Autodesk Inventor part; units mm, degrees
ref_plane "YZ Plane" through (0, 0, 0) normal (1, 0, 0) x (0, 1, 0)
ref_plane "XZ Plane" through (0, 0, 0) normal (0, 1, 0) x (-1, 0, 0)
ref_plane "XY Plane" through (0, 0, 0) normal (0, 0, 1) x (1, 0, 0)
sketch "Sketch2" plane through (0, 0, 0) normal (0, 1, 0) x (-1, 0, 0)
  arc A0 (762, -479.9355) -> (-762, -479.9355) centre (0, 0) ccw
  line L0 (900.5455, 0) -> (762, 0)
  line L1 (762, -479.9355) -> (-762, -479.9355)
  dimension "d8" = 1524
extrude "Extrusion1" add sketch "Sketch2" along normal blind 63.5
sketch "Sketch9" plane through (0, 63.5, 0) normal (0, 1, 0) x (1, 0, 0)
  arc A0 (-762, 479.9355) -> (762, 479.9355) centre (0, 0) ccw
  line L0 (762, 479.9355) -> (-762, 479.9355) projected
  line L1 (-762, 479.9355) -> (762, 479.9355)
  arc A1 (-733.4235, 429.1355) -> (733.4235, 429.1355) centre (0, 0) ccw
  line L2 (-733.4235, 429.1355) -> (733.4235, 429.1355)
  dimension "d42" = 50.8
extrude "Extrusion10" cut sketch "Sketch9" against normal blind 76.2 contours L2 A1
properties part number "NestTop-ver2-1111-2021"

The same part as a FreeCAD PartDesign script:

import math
import FreeCAD as App
import Part
import Sketcher
Q = App.Units.Quantity

doc = App.newDocument("Part")
params = doc.addObject("Spreadsheet::Sheet", "Params")
for row, (alias, value) in enumerate([
    ("sketch1_width", "60 in"),
    ("pad1_length", "2.5 in"),
    ("pocket1_length", "3 in"),
], start=1):
    params.set(f"A{row}", alias)
    params.set(f"B{row}", "=" + value)
    params.setAlias(f"B{row}", alias)

body = doc.addObject("PartDesign::Body", "Body")

# Sketch on XZ plane
sketch1 = doc.addObject("Sketcher::SketchObject", "Sketch")
body.addObject(sketch1)
sketch1.AttachmentSupport = (doc.XZ_Plane, [""])
sketch1.MapMode = "FlatFace"
sketch1.addGeometry([
    Part.LineSegment(App.Vector(762, -479.9355, 0), App.Vector(-762, -479.9355, 0)),
    Part.ArcOfCircle(Part.Circle(App.Vector(0, 0, 0), App.Vector(0, 0, 1), 900.545437), math.radians(-32.204226), math.radians(212.204226)),
], False)
sketch1.addConstraint([
    Sketcher.Constraint("Coincident", 0, 1, 1, 1),
    Sketcher.Constraint("Coincident", 1, 2, 0, 2),
    Sketcher.Constraint("Horizontal", 0),
    Sketcher.Constraint("Coincident", 1, 3, -1, 1),
    Sketcher.Constraint("DistanceX", 0, 2, 0, 1, Q("60 in")),
    Sketcher.Constraint("Radius", 1, Q("900.5454 mm")),
])
sketch1.setExpression("Constraints[4]", "Params.sketch1_width")
pad1 = doc.addObject("PartDesign::Pad", "Pad")
body.addObject(pad1)
pad1.Profile = sketch1
pad1.setExpression("Length", "Params.pad1_length")
pad1.Reversed = True

# Sketch on XZ plane
sketch2 = doc.addObject("Sketcher::SketchObject", "Sketch001")
body.addObject(sketch2)
sketch2.AttachmentSupport = (doc.XZ_Plane, [""])
sketch2.MapMode = "FlatFace"
sketch2.AttachmentOffset = App.Placement(App.Vector(0, 0, -2.5 * 25.4), App.Rotation())
sketch2.addGeometry([
    Part.LineSegment(App.Vector(733.4235, -429.1355, 0), App.Vector(-733.4235, -429.1355, 0)),
    Part.ArcOfCircle(Part.Circle(App.Vector(0, 0, 0), App.Vector(0, 0, 1), 849.745437), math.radians(-30.33245), math.radians(210.33245)),
], False)
sketch2.addConstraint([
    Sketcher.Constraint("Coincident", 0, 1, 1, 1),
    Sketcher.Constraint("Coincident", 1, 2, 0, 2),
    Sketcher.Constraint("Horizontal", 0),
    Sketcher.Constraint("Coincident", 1, 3, -1, 1),
    Sketcher.Constraint("Radius", 1, Q("849.7454 mm")),
    Sketcher.Constraint("DistanceX", 0, 2, 0, 1, Q("1466.847 mm")),
])
pocket1 = doc.addObject("PartDesign::Pocket", "Pocket")
body.addObject(pocket1)
pocket1.Profile = sketch2
pocket1.setExpression("Length", "Params.pocket1_length")
pocket1.Reversed = True

doc.recompute()
